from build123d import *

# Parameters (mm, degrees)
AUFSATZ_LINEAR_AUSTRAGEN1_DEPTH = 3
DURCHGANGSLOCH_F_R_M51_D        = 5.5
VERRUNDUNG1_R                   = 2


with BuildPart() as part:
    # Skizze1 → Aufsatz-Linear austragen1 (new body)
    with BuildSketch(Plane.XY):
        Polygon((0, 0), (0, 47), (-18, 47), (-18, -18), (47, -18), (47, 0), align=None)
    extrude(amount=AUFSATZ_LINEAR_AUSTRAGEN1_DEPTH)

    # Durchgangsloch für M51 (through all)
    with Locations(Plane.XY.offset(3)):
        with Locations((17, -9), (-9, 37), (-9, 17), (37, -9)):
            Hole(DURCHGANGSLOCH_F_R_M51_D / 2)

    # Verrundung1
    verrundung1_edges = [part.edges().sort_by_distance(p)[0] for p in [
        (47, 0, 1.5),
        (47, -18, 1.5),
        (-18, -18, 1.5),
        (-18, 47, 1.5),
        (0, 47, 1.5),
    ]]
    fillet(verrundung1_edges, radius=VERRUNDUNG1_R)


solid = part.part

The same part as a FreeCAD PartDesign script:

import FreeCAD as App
import Part
import Sketcher

V = App.Vector
Q = App.Units.Quantity


def edges_at(feature, points):
    """Names of the edges that pass closest to the given points."""
    edges = feature.Shape.Edges
    near = lambda p: min(range(len(edges)), key=lambda i: edges[i].distToShape(Part.Vertex(*p))[0])
    return sorted({f"Edge{near(p) + 1}" for p in points})

doc = App.newDocument("Part")
body = doc.addObject("PartDesign::Body", "Body")

sketch1 = body.newObject("Sketcher::SketchObject", "Sketch")
sketch1.AttachmentSupport = (doc.getObject("XY_Plane"), [""])
sketch1.MapMode = "FlatFace"
sketch1.addGeometry([
    Part.LineSegment(V(0, 0, 0), V(0, 47, 0)),
    Part.LineSegment(V(0, 47, 0), V(-18, 47, 0)),
    Part.LineSegment(V(-18, 47, 0), V(-18, -18, 0)),
    Part.LineSegment(V(-18, -18, 0), V(47, -18, 0)),
    Part.LineSegment(V(47, -18, 0), V(47, 0, 0)),
    Part.LineSegment(V(47, 0, 0), V(0, 0, 0)),
], False)
sketch1.addConstraint([
    Sketcher.Constraint("Coincident", 0, 2, 1, 1),
    Sketcher.Constraint("Coincident", 1, 2, 2, 1),
    Sketcher.Constraint("Coincident", 2, 2, 3, 1),
    Sketcher.Constraint("Coincident", 3, 2, 4, 1),
    Sketcher.Constraint("Coincident", 4, 2, 5, 1),
    Sketcher.Constraint("Coincident", 5, 2, 0, 1),
    Sketcher.Constraint("Vertical", 0),
    Sketcher.Constraint("Horizontal", 1),
    Sketcher.Constraint("Vertical", 2),
    Sketcher.Constraint("Horizontal", 3),
    Sketcher.Constraint("Vertical", 4),
    Sketcher.Constraint("Horizontal", 5),
    Sketcher.Constraint("Coincident", 5, 2, -1, 1),
    Sketcher.Constraint("Equal", 5, 0),
    Sketcher.Constraint("Equal", 3, 2),
    Sketcher.Constraint("DistanceX", 1, 2, 1, 1, Q("18 mm")),
    Sketcher.Constraint("DistanceX", 3, 1, 3, 2, Q("65 mm")),
])
pad1 = body.newObject("PartDesign::Pad", "Pad")
pad1.Profile = sketch1
pad1.Length = 3

sketch2 = body.newObject("Sketcher::SketchObject", "Sketch001")
sketch2.AttachmentSupport = (doc.getObject("XY_Plane"), [""])
sketch2.MapMode = "FlatFace"
sketch2.AttachmentOffset = App.Placement(V(0, 0, 3), App.Rotation())
sketch2.addGeometry([
    Part.Circle(V(17, -9, 0), V(0, 0, 1), 2.8),
    Part.Circle(V(-9, 37, 0), V(0, 0, 1), 2.8),
    Part.Circle(V(-9, 17, 0), V(0, 0, 1), 2.8),
    Part.Circle(V(37, -9, 0), V(0, 0, 1), 2.8),
], False)
sketch2.addConstraint([
    Sketcher.Constraint("Equal", 0, 1),
    Sketcher.Constraint("Equal", 1, 2),
    Sketcher.Constraint("Equal", 2, 3),
    Sketcher.Constraint("Horizontal", 0, 3, 3, 3),
    Sketcher.Constraint("Vertical", 1, 3, 2, 3),
    Sketcher.Constraint("Diameter", 0, Q("5.5 mm")),
    Sketcher.Constraint("DistanceX", -1, 1, 0, 3, Q("17 mm")),
    Sketcher.Constraint("DistanceY", 0, 3, -1, 1, Q("9 mm")),
    Sketcher.Constraint("DistanceX", 1, 3, -1, 1, Q("9 mm")),
    Sketcher.Constraint("DistanceY", -1, 1, 1, 3, Q("37 mm")),
    Sketcher.Constraint("DistanceY", -1, 1, 2, 3, Q("17 mm")),
    Sketcher.Constraint("DistanceX", -1, 1, 3, 3, Q("37 mm")),
])
doc.recompute()
hole = body.newObject("PartDesign::Hole", "Hole")
hole.Profile = sketch2
hole.ThreadType = "None"
hole.Diameter = 5.5
hole.DepthType = "ThroughAll"
doc.recompute()

fillet = body.newObject("PartDesign::Fillet", "Fillet")
fillet.Base = (hole, edges_at(hole, [
    (47, 0, 1.5),
    (47, -18, 1.5),
    (-18, -18, 1.5),
    (-18, 47, 1.5),
    (0, 47, 1.5),
]))
fillet.Radius = 2

doc.recompute()
